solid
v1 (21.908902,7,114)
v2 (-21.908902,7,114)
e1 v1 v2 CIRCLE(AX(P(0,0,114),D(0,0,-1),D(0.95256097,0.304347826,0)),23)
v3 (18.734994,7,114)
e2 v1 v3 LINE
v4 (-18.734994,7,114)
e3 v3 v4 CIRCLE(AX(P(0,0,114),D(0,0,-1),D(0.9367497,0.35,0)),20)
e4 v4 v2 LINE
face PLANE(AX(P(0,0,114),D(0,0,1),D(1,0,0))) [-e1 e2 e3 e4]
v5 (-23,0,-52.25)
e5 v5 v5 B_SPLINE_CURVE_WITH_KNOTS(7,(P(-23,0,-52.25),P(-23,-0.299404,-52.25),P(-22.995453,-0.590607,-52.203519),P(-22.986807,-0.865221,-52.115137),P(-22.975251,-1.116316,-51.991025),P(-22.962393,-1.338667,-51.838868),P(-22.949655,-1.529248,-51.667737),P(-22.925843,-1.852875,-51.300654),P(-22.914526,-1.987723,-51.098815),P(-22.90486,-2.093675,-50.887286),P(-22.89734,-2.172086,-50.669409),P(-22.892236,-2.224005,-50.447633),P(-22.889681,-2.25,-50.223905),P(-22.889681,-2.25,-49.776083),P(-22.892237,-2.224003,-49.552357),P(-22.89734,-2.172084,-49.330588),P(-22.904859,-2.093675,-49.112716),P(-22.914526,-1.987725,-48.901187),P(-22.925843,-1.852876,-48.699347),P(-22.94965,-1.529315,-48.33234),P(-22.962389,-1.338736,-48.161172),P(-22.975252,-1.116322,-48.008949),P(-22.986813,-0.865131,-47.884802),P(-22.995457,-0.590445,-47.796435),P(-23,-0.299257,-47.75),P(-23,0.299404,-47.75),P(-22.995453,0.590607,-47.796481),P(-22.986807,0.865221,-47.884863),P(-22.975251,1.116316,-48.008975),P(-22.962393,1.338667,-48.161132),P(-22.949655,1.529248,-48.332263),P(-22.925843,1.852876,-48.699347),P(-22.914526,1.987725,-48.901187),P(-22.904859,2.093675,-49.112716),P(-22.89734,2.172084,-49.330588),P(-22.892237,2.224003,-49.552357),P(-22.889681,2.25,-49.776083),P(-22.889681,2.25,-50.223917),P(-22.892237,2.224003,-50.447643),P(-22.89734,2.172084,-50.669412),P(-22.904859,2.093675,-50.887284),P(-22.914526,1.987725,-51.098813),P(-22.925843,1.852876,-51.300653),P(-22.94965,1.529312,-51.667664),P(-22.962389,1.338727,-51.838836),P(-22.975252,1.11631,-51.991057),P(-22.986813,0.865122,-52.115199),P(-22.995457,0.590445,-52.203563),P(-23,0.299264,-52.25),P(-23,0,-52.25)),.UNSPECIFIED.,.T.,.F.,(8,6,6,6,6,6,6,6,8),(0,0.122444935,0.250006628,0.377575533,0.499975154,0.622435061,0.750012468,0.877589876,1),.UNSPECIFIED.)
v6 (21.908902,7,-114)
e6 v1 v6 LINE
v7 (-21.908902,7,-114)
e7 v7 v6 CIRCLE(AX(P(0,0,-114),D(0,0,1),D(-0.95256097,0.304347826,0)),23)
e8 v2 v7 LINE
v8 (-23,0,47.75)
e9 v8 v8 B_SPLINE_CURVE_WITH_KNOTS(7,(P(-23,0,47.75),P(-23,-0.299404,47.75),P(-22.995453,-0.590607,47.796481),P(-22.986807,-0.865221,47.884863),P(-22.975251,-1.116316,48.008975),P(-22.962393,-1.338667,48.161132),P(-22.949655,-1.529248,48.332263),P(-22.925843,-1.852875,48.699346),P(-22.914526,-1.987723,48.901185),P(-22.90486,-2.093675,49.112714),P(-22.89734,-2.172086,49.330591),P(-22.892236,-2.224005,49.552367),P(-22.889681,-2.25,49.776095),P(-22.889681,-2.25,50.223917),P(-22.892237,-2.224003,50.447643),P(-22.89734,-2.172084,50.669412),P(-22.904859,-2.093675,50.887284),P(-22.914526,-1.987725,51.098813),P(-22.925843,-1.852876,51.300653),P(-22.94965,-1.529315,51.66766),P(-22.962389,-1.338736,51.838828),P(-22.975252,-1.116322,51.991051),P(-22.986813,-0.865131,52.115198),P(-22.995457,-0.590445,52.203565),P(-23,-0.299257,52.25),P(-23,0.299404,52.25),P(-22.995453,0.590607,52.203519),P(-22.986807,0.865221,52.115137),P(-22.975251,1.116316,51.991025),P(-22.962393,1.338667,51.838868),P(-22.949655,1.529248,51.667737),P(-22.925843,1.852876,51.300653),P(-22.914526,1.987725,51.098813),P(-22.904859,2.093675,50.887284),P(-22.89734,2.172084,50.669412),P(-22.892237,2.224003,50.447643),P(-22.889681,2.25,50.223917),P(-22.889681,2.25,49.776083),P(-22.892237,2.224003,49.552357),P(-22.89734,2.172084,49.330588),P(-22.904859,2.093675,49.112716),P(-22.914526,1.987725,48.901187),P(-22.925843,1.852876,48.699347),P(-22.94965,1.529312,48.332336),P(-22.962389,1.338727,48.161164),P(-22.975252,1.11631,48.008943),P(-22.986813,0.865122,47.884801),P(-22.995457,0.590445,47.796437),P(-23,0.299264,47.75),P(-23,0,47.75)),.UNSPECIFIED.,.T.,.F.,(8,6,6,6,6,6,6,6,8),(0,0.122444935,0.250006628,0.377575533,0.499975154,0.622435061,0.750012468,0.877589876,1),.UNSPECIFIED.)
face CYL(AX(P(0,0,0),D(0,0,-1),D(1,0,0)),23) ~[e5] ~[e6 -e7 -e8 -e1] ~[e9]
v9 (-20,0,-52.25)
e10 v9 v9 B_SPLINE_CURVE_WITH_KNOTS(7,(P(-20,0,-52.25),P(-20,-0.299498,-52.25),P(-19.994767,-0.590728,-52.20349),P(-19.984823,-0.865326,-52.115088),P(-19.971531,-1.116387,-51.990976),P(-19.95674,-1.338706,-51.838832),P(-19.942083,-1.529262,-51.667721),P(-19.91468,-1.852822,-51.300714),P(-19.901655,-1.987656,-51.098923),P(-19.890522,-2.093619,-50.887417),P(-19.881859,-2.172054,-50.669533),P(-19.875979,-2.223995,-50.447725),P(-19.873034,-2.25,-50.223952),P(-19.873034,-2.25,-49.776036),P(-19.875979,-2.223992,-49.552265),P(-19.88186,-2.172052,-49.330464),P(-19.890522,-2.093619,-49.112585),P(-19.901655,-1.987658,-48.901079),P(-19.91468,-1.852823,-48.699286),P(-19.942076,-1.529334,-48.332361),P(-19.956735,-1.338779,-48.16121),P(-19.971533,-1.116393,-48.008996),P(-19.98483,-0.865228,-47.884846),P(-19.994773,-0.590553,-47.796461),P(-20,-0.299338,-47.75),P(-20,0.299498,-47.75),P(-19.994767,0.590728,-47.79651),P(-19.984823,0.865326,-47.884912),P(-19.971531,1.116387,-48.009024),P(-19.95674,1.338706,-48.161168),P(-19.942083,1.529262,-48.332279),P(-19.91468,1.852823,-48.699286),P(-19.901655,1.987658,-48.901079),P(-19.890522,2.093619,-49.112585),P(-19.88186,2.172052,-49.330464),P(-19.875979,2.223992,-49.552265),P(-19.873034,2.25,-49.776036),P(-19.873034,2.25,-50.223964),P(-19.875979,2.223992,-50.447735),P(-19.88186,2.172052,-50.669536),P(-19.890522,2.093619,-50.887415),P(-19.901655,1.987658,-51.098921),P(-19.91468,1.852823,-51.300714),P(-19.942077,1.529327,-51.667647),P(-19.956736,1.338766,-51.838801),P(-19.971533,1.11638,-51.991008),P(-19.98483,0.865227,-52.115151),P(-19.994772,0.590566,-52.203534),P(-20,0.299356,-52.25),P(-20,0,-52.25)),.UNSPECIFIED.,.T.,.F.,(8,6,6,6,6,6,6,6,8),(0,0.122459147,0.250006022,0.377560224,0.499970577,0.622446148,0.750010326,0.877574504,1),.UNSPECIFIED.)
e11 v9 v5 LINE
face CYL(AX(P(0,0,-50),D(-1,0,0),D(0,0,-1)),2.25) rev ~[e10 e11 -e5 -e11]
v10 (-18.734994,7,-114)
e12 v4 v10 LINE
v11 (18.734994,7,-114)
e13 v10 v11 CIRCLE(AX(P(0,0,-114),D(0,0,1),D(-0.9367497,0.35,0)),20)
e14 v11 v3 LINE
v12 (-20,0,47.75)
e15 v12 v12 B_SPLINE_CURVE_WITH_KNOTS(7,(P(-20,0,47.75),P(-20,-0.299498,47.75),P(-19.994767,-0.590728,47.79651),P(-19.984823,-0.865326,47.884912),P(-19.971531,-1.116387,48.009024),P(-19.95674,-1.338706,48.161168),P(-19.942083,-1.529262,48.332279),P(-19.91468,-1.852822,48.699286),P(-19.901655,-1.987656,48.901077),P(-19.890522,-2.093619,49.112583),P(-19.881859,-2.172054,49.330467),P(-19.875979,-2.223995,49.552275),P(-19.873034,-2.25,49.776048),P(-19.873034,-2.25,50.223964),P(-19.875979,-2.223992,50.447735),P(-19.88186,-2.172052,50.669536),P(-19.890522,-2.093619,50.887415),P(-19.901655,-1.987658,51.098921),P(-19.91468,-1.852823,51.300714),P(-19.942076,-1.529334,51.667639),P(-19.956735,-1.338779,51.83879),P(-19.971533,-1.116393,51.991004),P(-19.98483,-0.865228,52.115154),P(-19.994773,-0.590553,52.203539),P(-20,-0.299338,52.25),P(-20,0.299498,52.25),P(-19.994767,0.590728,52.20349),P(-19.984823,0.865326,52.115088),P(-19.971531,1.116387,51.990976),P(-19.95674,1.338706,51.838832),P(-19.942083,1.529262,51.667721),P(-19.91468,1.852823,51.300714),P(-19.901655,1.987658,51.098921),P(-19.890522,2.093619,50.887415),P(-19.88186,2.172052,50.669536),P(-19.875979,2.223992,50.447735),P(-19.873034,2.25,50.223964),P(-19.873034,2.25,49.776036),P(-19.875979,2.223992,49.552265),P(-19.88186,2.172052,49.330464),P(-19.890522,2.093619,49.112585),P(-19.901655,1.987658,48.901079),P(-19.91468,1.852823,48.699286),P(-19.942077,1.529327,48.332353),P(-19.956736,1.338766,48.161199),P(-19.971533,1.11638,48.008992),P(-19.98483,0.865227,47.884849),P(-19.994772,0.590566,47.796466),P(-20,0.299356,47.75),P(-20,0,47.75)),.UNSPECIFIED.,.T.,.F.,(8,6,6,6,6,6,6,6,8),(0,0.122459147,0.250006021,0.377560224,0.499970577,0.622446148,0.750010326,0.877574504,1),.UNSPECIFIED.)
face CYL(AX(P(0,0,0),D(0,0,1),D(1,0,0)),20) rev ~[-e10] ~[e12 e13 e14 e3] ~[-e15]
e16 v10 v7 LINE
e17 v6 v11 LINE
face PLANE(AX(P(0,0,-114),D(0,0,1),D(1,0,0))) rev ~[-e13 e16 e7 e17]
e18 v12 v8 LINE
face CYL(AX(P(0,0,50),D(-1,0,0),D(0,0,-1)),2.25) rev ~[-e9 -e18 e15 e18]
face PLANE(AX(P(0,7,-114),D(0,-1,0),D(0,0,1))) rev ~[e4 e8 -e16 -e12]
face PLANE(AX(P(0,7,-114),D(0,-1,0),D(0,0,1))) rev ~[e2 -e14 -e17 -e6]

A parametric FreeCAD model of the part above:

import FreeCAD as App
import Part
import Sketcher
Q = App.Units.Quantity

doc = App.newDocument("Part")
body = doc.addObject("PartDesign::Body", "Body")

# Sketch on XY plane
sketch1 = body.newObject("Sketcher::SketchObject", "Sketch")
sketch1.AttachmentSupport = (doc.getObject("XY_Plane"), [""])
sketch1.MapMode = "FlatFace"
sketch1.addGeometry([
    Part.Circle(App.Vector(0, 0, 0), App.Vector(0, 0, 1), 23),
    Part.Circle(App.Vector(0, 0, 0), App.Vector(0, 0, 1), 20),
], False)
sketch1.addConstraint([
    Sketcher.Constraint("Coincident", 0, 3, -1, 1),
    Sketcher.Constraint("Coincident", 1, 3, -1, 1),
    Sketcher.Constraint("Diameter", 0, Q("46 mm")),
    Sketcher.Constraint("Diameter", 1, Q("40 mm")),
])
pad1 = body.newObject("PartDesign::Pad", "Pad")
pad1.Profile = sketch1
pad1.Length = 228
pad1.Midplane = True

# Sketch on YZ plane
sketch2 = body.newObject("Sketcher::SketchObject", "Sketch001")
sketch2.AttachmentSupport = (doc.getObject("YZ_Plane"), [""])
sketch2.MapMode = "FlatFace"
sketch2.addGeometry([
    Part.Circle(App.Vector(0, 50, 0), App.Vector(0, 0, 1), 2.2),
    Part.Circle(App.Vector(0, -50, 0), App.Vector(0, 0, 1), 2.2),
], False)
sketch2.addConstraint([
    Sketcher.Constraint("Equal", 0, 1),
    Sketcher.Constraint("Symmetric", 0, 3, 1, 3, -1, 1),
    Sketcher.Constraint("PointOnObject", 0, 3, -2),
    Sketcher.Constraint("Diameter", 0, Q("4.5 mm")),
    Sketcher.Constraint("DistanceY", -1, 1, 0, 3, Q("50 mm")),
])
doc.recompute()
hole = body.newObject("PartDesign::Hole", "Hole")
hole.Profile = sketch2
hole.ThreadType = "None"
hole.Diameter = 4.5
hole.DepthType = "ThroughAll"

# Sketch on YZ plane
sketch3 = body.newObject("Sketcher::SketchObject", "Sketch002")
sketch3.AttachmentSupport = (doc.getObject("YZ_Plane"), [""])
sketch3.MapMode = "FlatFace"
sketch3.addGeometry([
    Part.LineSegment(App.Vector(7, -114, 0), App.Vector(23, -114, 0)),
    Part.LineSegment(App.Vector(23, -114, 0), App.Vector(23, 114, 0)),
    Part.LineSegment(App.Vector(23, 114, 0), App.Vector(7, 114, 0)),
    Part.LineSegment(App.Vector(7, 114, 0), App.Vector(7, -114, 0)),
], False)
sketch3.addConstraint([
    Sketcher.Constraint("Coincident", 0, 2, 1, 1),
    Sketcher.Constraint("Coincident", 1, 2, 2, 1),
    Sketcher.Constraint("Coincident", 2, 2, 3, 1),
    Sketcher.Constraint("Coincident", 3, 2, 0, 1),
    Sketcher.Constraint("Horizontal", 0),
    Sketcher.Constraint("Vertical", 1),
    Sketcher.Constraint("Horizontal", 2),
    Sketcher.Constraint("Vertical", 3),
    Sketcher.Constraint("DistanceX", -1, 1, 2, 2, Q("7 mm")),
    Sketcher.Constraint("DistanceX", 0, 1, 0, 2, Q("16 mm")),
    Sketcher.Constraint("DistanceY", 1, 1, 1, 2, Q("228 mm")),
    Sketcher.Constraint("DistanceY", 0, 2, -1, 1, Q("114 mm")),
])
pocket1 = body.newObject("PartDesign::Pocket", "Pocket")
pocket1.Profile = sketch3
pocket1.Type = "ThroughAll"
pocket1.Midplane = True

doc.recompute()
